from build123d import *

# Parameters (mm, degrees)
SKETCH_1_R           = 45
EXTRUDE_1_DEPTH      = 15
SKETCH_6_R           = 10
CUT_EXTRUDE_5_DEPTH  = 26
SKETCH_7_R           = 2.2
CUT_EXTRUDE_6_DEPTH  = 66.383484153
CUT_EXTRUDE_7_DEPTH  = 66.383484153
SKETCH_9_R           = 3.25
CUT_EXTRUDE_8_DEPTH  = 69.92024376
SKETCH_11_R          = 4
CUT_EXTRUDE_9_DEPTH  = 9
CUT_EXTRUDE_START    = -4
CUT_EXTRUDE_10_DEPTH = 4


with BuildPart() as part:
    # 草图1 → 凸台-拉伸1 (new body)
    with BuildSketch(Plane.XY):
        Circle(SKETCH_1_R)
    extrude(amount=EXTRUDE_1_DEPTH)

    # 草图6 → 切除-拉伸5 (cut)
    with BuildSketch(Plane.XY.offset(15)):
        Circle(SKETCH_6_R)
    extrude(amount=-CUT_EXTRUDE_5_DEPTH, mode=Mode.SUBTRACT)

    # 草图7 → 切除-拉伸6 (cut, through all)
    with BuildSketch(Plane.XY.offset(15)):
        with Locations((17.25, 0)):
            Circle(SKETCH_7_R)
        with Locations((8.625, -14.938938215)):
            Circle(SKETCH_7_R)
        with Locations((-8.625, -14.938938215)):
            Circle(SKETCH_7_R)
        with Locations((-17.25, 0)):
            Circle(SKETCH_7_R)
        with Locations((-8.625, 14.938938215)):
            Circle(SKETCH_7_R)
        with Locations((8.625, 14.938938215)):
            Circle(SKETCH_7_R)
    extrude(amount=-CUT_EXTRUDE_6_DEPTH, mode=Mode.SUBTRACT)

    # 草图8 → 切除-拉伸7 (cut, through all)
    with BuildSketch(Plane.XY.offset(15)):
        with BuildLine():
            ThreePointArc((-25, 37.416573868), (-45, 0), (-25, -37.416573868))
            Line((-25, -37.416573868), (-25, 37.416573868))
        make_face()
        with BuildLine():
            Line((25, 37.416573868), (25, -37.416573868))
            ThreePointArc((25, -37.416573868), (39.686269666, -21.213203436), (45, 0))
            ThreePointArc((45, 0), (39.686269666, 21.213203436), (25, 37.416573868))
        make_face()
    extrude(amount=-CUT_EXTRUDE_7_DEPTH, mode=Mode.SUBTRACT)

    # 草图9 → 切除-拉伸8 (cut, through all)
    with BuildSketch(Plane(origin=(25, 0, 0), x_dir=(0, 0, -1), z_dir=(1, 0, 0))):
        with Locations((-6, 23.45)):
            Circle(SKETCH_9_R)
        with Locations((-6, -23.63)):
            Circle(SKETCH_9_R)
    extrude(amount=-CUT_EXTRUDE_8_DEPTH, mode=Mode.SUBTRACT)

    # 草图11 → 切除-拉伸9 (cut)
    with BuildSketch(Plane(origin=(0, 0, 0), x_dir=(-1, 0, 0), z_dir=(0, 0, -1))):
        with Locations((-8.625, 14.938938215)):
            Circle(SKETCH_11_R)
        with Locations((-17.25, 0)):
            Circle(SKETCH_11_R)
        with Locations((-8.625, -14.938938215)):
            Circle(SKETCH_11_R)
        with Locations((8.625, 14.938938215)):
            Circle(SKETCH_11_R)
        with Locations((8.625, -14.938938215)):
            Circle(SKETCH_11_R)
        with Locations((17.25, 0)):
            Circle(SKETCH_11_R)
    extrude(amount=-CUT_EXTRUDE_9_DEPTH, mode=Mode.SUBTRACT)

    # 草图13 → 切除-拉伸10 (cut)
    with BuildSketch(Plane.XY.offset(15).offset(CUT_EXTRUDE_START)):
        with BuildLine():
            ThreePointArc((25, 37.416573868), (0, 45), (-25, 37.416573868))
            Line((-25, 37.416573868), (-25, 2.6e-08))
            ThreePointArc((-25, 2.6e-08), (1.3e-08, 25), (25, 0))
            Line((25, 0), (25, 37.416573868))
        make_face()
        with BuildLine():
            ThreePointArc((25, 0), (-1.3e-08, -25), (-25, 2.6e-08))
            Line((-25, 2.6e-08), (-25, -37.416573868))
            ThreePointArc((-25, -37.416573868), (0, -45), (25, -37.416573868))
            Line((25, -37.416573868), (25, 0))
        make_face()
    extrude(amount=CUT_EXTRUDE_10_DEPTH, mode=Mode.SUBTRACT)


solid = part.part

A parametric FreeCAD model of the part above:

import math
import FreeCAD as App
import Part
import Sketcher
from FreeCAD import Vector
Q = App.Units.Quantity

doc = App.newDocument("Part")
params = doc.addObject("Spreadsheet::Sheet", "Params")
for row, (alias, value) in enumerate([
    ("sketch1_diameter", "90 mm"),
    ("pad1_length", "15 mm"),
    ("sketch2_diameter", "20 mm"),
    ("pocket1_length", "26 mm"),
    ("sketch3_diameter", "4.4 mm"),
    ("sketch4_radius", "45 mm"),
    ("sketch5_diameter", "6.5 mm"),
    ("sketch6_diameter", "8 mm"),
    ("pocket5_length", "9 mm"),
    ("sketch7_radius", "45 mm"),
    ("sketch7_radius2", "25 mm"),
    ("pocket6_length", "4 mm"),
], start=1):
    params.set(f"A{row}", alias)
    params.set(f"B{row}", "=" + value)
    params.setAlias(f"B{row}", alias)

body = doc.addObject("PartDesign::Body", "Body")

# Sketch on XY plane
sketch1 = body.newObject("Sketcher::SketchObject", "Sketch")
sketch1.AttachmentSupport = (doc.getObject("XY_Plane"), [""])
sketch1.MapMode = "FlatFace"
sketch1.addGeometry(Part.Circle(Vector(0, 0, 0), Vector(0, 0, 1), 45), False)
sketch1.addConstraint([
    Sketcher.Constraint("Coincident", 0, 3, -1, 1),
    Sketcher.Constraint("Diameter", 0, Q("90 mm")),
])
sketch1.setExpression("Constraints[1]", "Params.sketch1_diameter")
pad1 = body.newObject("PartDesign::Pad", "Pad")
pad1.Profile = sketch1
pad1.setExpression("Length", "Params.pad1_length")

# Sketch on XY plane
sketch2 = body.newObject("Sketcher::SketchObject", "Sketch001")
sketch2.AttachmentSupport = (doc.getObject("XY_Plane"), [""])
sketch2.MapMode = "FlatFace"
sketch2.AttachmentOffset = App.Placement(Vector(0, 0, 15), App.Rotation())
sketch2.addGeometry(Part.Circle(Vector(0, 0, 0), Vector(0, 0, 1), 10), False)
sketch2.addConstraint([
    Sketcher.Constraint("Coincident", 0, 3, -1, 1),
    Sketcher.Constraint("Diameter", 0, Q("20 mm")),
])
sketch2.setExpression("Constraints[1]", "Params.sketch2_diameter")
pocket1 = body.newObject("PartDesign::Pocket", "Pocket")
pocket1.Profile = sketch2
pocket1.setExpression("Length", "Params.pocket1_length")

# Sketch on XY plane
sketch3 = body.newObject("Sketcher::SketchObject", "Sketch002")
sketch3.AttachmentSupport = (doc.getObject("XY_Plane"), [""])
sketch3.MapMode = "FlatFace"
sketch3.AttachmentOffset = App.Placement(Vector(0, 0, 15), App.Rotation())
sketch3.addGeometry([
    Part.Circle(Vector(17.2, 0, 0), Vector(0, 0, 1), 2.2),  # 0
    Part.Circle(Vector(8.6, -14.9, 0), Vector(0, 0, 1), 2.2),  # 1
    Part.Circle(Vector(-8.6, -14.9, 0), Vector(0, 0, 1), 2.2),  # 2
    Part.Circle(Vector(-17.2, 0, 0), Vector(0, 0, 1), 2.2),  # 3
    Part.Circle(Vector(-8.6, 14.9, 0), Vector(0, 0, 1), 2.2),  # 4
    Part.Circle(Vector(8.6, 14.9, 0), Vector(0, 0, 1), 2.2),  # 5
], False)
sketch3.addConstraint([
    Sketcher.Constraint("Equal", 0, 1),
    Sketcher.Constraint("Equal", 1, 2),
    Sketcher.Constraint("Equal", 2, 3),
    Sketcher.Constraint("Equal", 3, 4),
    Sketcher.Constraint("Equal", 4, 5),
    Sketcher.Constraint("Symmetric", 0, 3, 3, 3, -1, 1),
    Sketcher.Constraint("Symmetric", 1, 3, 4, 3, -1, 1),
    Sketcher.Constraint("Symmetric", 2, 3, 5, 3, -1, 1),
    Sketcher.Constraint("Symmetric", 1, 3, 2, 3, -2),
    Sketcher.Constraint("PointOnObject", 0, 3, -1),
    Sketcher.Constraint("Diameter", 0, Q("4.4 mm")),
    Sketcher.Constraint("DistanceX", 3, 3, 0, 3, Q("34.5 mm")),
    Sketcher.Constraint("DistanceX", 2, 3, 1, 3, Q("17.25 mm")),
    Sketcher.Constraint("DistanceY", 1, 3, -1, 1, Q("14.938938 mm")),
])
sketch3.setExpression("Constraints[10]", "Params.sketch3_diameter")
pocket2 = body.newObject("PartDesign::Pocket", "Pocket001")
pocket2.Profile = sketch3
pocket2.Type = "ThroughAll"

# Sketch on XY plane
sketch4 = body.newObject("Sketcher::SketchObject", "Sketch003")
sketch4.AttachmentSupport = (doc.getObject("XY_Plane"), [""])
sketch4.MapMode = "FlatFace"
sketch4.AttachmentOffset = App.Placement(Vector(0, 0, 15), App.Rotation())
sketch4.addGeometry([
    Part.ArcOfCircle(Part.Circle(Vector(0, 0, 0), Vector(0, 0, 1), 45), math.radians(124), math.radians(236)),  # 0
    Part.LineSegment(Vector(-25, -37, 0), Vector(-25, 37, 0)),  # 1
    Part.LineSegment(Vector(25, 37, 0), Vector(25, -37, 0)),  # 2
    Part.ArcOfCircle(Part.Circle(Vector(0, 0, 0), Vector(0, 0, 1), 45), math.radians(-56), math.radians(0)),  # 3
    Part.ArcOfCircle(Part.Circle(Vector(0, 0, 0), Vector(0, 0, 1), 45), math.radians(0), math.radians(56)),  # 4
], False)
sketch4.addConstraint([
    Sketcher.Constraint("Coincident", 0, 1, 1, 2),
    Sketcher.Constraint("Coincident", 1, 1, 0, 2),
    Sketcher.Constraint("Coincident", 2, 2, 3, 1),
    Sketcher.Constraint("Tangent", 3, 2, 4, 1),
    Sketcher.Constraint("Coincident", 4, 2, 2, 1),
    Sketcher.Constraint("Vertical", 1),
    Sketcher.Constraint("Vertical", 2),
    Sketcher.Constraint("Coincident", 0, 3, -1, 1),
    Sketcher.Constraint("Coincident", 3, 3, -1, 1),
    Sketcher.Constraint("Equal", 0, 3),
    Sketcher.Constraint("Equal", 3, 4),
    Sketcher.Constraint("PointOnObject", 3, 2, -1),
    Sketcher.Constraint("Horizontal", 1, 1, 2, 2),
    Sketcher.Constraint("Radius", 0, Q("45 mm")),
    Sketcher.Constraint("DistanceX", 0, 1, -1, 1, Q("25 mm")),
])
sketch4.setExpression("Constraints[13]", "Params.sketch4_radius")
pocket3 = body.newObject("PartDesign::Pocket", "Pocket002")
pocket3.Profile = sketch4
pocket3.Type = "ThroughAll"

# Sketch on YZ plane
sketch5 = body.newObject("Sketcher::SketchObject", "Sketch004")
sketch5.AttachmentSupport = (doc.getObject("YZ_Plane"), [""])
sketch5.MapMode = "FlatFace"
sketch5.AttachmentOffset = App.Placement(Vector(0, 0, 25), App.Rotation())
sketch5.addGeometry([
    Part.Circle(Vector(23.4, 6, 0), Vector(0, 0, 1), 3.2),
    Part.Circle(Vector(-23.6, 6, 0), Vector(0, 0, 1), 3.2),
], False)
sketch5.addConstraint([
    Sketcher.Constraint("Equal", 0, 1),
    Sketcher.Constraint("Horizontal", 0, 3, 1, 3),
    Sketcher.Constraint("Diameter", 0, Q("6.5 mm")),
    Sketcher.Constraint("DistanceY", -1, 1, 0, 3, Q("6 mm")),
    Sketcher.Constraint("DistanceX", -1, 1, 0, 3, Q("23.45 mm")),
    Sketcher.Constraint("DistanceX", 1, 3, -1, 1, Q("23.63 mm")),
])
sketch5.setExpression("Constraints[2]", "Params.sketch5_diameter")
pocket4 = body.newObject("PartDesign::Pocket", "Pocket003")
pocket4.Profile = sketch5
pocket4.Type = "ThroughAll"

# Sketch on XY plane
sketch6 = body.newObject("Sketcher::SketchObject", "Sketch005")
sketch6.AttachmentSupport = (doc.getObject("XY_Plane"), [""])
sketch6.MapMode = "FlatFace"
sketch6.addGeometry([
    Part.Circle(Vector(8.6, 14.9, 0), Vector(0, 0, 1), 4),  # 0
    Part.Circle(Vector(17.2, 0, 0), Vector(0, 0, 1), 4),  # 1
    Part.Circle(Vector(8.6, -14.9, 0), Vector(0, 0, 1), 4),  # 2
    Part.Circle(Vector(-8.6, 14.9, 0), Vector(0, 0, 1), 4),  # 3
    Part.Circle(Vector(-8.6, -14.9, 0), Vector(0, 0, 1), 4),  # 4
    Part.Circle(Vector(-17.2, 0, 0), Vector(0, 0, 1), 4),  # 5
], False)
sketch6.addConstraint([
    Sketcher.Constraint("Equal", 0, 1),
    Sketcher.Constraint("Equal", 1, 2),
    Sketcher.Constraint("Equal", 2, 3),
    Sketcher.Constraint("Equal", 3, 4),
    Sketcher.Constraint("Equal", 4, 5),
    Sketcher.Constraint("Symmetric", 2, 3, 3, 3, -1, 1),
    Sketcher.Constraint("Symmetric", 0, 3, 4, 3, -1, 1),
    Sketcher.Constraint("Symmetric", 1, 3, 5, 3, -1, 1),
    Sketcher.Constraint("Symmetric", 0, 3, 3, 3, -2),
    Sketcher.Constraint("PointOnObject", 1, 3, -1),
    Sketcher.Constraint("Diameter", 0, Q("8 mm")),
    Sketcher.Constraint("DistanceX", 5, 3, 1, 3, Q("34.5 mm")),
    Sketcher.Constraint("DistanceX", 3, 3, 0, 3, Q("17.25 mm")),
    Sketcher.Constraint("DistanceY", -1, 1, 0, 3, Q("14.938938 mm")),
])
sketch6.setExpression("Constraints[10]", "Params.sketch6_diameter")
pocket5 = body.newObject("PartDesign::Pocket", "Pocket004")
pocket5.Profile = sketch6
pocket5.setExpression("Length", "Params.pocket5_length")
pocket5.Reversed = True

# Sketch on XY plane
sketch7 = body.newObject("Sketcher::SketchObject", "Sketch006")
sketch7.AttachmentSupport = (doc.getObject("XY_Plane"), [""])
sketch7.MapMode = "FlatFace"
sketch7.AttachmentOffset = App.Placement(Vector(0, 0, 11), App.Rotation())
sketch7.addGeometry([
    Part.ArcOfCircle(Part.Circle(Vector(0, 0, 0), Vector(0, 0, 1), 45), math.radians(56), math.radians(124)),  # 0
    Part.LineSegment(Vector(-25, 37, 0), Vector(-25, 0, 0)),  # 1
    Part.ArcOfCircle(Part.Circle(Vector(0, 0, 0), Vector(0, 0, 1), 25), math.radians(0), math.radians(180)),  # 2
    Part.LineSegment(Vector(25, 0, 0), Vector(25, 37, 0)),  # 3
    Part.ArcOfCircle(Part.Circle(Vector(0, 0, 0), Vector(0, 0, 1), 25), math.radians(180), math.radians(360)),  # 4
    Part.LineSegment(Vector(-25, 0, 0), Vector(-25, -37, 0)),  # 5
    Part.ArcOfCircle(Part.Circle(Vector(0, 0, 0), Vector(0, 0, 1), 45), math.radians(-124), math.radians(-56)),  # 6
    Part.LineSegment(Vector(25, -37, 0), Vector(25, 0, 0)),  # 7
], False)
sketch7.addConstraint([
    Sketcher.Constraint("Coincident", 0, 2, 1, 1),
    Sketcher.Constraint("Tangent", 1, 2, 2, 2),
    Sketcher.Constraint("Tangent", 2, 1, 3, 1),
    Sketcher.Constraint("Coincident", 3, 2, 0, 1),
    Sketcher.Constraint("Tangent", 4, 1, 5, 1),
    Sketcher.Constraint("Coincident", 5, 2, 6, 1),
    Sketcher.Constraint("Coincident", 6, 2, 7, 1),
    Sketcher.Constraint("Tangent", 7, 2, 4, 2),
    Sketcher.Constraint("Vertical", 1),
    Sketcher.Constraint("Vertical", 3),
    Sketcher.Constraint("Vertical", 5),
    Sketcher.Constraint("Vertical", 7),
    Sketcher.Constraint("Coincident", 0, 3, -1, 1),
    Sketcher.Constraint("Coincident", 2, 3, -1, 1),
    Sketcher.Constraint("Coincident", 4, 3, -1, 1),
    Sketcher.Constraint("Coincident", 6, 3, -1, 1),
    Sketcher.Constraint("Equal", 2, 4),
    Sketcher.Constraint("Equal", 0, 6),
    Sketcher.Constraint("Radius", 0, Q("45 mm")),
    Sketcher.Constraint("Radius", 2, Q("25 mm")),
])
sketch7.setExpression("Constraints[18]", "Params.sketch7_radius")
sketch7.setExpression("Constraints[19]", "Params.sketch7_radius2")
pocket6 = body.newObject("PartDesign::Pocket", "Pocket005")
pocket6.Profile = sketch7
pocket6.setExpression("Length", "Params.pocket6_length")
pocket6.Reversed = True

doc.recompute()
